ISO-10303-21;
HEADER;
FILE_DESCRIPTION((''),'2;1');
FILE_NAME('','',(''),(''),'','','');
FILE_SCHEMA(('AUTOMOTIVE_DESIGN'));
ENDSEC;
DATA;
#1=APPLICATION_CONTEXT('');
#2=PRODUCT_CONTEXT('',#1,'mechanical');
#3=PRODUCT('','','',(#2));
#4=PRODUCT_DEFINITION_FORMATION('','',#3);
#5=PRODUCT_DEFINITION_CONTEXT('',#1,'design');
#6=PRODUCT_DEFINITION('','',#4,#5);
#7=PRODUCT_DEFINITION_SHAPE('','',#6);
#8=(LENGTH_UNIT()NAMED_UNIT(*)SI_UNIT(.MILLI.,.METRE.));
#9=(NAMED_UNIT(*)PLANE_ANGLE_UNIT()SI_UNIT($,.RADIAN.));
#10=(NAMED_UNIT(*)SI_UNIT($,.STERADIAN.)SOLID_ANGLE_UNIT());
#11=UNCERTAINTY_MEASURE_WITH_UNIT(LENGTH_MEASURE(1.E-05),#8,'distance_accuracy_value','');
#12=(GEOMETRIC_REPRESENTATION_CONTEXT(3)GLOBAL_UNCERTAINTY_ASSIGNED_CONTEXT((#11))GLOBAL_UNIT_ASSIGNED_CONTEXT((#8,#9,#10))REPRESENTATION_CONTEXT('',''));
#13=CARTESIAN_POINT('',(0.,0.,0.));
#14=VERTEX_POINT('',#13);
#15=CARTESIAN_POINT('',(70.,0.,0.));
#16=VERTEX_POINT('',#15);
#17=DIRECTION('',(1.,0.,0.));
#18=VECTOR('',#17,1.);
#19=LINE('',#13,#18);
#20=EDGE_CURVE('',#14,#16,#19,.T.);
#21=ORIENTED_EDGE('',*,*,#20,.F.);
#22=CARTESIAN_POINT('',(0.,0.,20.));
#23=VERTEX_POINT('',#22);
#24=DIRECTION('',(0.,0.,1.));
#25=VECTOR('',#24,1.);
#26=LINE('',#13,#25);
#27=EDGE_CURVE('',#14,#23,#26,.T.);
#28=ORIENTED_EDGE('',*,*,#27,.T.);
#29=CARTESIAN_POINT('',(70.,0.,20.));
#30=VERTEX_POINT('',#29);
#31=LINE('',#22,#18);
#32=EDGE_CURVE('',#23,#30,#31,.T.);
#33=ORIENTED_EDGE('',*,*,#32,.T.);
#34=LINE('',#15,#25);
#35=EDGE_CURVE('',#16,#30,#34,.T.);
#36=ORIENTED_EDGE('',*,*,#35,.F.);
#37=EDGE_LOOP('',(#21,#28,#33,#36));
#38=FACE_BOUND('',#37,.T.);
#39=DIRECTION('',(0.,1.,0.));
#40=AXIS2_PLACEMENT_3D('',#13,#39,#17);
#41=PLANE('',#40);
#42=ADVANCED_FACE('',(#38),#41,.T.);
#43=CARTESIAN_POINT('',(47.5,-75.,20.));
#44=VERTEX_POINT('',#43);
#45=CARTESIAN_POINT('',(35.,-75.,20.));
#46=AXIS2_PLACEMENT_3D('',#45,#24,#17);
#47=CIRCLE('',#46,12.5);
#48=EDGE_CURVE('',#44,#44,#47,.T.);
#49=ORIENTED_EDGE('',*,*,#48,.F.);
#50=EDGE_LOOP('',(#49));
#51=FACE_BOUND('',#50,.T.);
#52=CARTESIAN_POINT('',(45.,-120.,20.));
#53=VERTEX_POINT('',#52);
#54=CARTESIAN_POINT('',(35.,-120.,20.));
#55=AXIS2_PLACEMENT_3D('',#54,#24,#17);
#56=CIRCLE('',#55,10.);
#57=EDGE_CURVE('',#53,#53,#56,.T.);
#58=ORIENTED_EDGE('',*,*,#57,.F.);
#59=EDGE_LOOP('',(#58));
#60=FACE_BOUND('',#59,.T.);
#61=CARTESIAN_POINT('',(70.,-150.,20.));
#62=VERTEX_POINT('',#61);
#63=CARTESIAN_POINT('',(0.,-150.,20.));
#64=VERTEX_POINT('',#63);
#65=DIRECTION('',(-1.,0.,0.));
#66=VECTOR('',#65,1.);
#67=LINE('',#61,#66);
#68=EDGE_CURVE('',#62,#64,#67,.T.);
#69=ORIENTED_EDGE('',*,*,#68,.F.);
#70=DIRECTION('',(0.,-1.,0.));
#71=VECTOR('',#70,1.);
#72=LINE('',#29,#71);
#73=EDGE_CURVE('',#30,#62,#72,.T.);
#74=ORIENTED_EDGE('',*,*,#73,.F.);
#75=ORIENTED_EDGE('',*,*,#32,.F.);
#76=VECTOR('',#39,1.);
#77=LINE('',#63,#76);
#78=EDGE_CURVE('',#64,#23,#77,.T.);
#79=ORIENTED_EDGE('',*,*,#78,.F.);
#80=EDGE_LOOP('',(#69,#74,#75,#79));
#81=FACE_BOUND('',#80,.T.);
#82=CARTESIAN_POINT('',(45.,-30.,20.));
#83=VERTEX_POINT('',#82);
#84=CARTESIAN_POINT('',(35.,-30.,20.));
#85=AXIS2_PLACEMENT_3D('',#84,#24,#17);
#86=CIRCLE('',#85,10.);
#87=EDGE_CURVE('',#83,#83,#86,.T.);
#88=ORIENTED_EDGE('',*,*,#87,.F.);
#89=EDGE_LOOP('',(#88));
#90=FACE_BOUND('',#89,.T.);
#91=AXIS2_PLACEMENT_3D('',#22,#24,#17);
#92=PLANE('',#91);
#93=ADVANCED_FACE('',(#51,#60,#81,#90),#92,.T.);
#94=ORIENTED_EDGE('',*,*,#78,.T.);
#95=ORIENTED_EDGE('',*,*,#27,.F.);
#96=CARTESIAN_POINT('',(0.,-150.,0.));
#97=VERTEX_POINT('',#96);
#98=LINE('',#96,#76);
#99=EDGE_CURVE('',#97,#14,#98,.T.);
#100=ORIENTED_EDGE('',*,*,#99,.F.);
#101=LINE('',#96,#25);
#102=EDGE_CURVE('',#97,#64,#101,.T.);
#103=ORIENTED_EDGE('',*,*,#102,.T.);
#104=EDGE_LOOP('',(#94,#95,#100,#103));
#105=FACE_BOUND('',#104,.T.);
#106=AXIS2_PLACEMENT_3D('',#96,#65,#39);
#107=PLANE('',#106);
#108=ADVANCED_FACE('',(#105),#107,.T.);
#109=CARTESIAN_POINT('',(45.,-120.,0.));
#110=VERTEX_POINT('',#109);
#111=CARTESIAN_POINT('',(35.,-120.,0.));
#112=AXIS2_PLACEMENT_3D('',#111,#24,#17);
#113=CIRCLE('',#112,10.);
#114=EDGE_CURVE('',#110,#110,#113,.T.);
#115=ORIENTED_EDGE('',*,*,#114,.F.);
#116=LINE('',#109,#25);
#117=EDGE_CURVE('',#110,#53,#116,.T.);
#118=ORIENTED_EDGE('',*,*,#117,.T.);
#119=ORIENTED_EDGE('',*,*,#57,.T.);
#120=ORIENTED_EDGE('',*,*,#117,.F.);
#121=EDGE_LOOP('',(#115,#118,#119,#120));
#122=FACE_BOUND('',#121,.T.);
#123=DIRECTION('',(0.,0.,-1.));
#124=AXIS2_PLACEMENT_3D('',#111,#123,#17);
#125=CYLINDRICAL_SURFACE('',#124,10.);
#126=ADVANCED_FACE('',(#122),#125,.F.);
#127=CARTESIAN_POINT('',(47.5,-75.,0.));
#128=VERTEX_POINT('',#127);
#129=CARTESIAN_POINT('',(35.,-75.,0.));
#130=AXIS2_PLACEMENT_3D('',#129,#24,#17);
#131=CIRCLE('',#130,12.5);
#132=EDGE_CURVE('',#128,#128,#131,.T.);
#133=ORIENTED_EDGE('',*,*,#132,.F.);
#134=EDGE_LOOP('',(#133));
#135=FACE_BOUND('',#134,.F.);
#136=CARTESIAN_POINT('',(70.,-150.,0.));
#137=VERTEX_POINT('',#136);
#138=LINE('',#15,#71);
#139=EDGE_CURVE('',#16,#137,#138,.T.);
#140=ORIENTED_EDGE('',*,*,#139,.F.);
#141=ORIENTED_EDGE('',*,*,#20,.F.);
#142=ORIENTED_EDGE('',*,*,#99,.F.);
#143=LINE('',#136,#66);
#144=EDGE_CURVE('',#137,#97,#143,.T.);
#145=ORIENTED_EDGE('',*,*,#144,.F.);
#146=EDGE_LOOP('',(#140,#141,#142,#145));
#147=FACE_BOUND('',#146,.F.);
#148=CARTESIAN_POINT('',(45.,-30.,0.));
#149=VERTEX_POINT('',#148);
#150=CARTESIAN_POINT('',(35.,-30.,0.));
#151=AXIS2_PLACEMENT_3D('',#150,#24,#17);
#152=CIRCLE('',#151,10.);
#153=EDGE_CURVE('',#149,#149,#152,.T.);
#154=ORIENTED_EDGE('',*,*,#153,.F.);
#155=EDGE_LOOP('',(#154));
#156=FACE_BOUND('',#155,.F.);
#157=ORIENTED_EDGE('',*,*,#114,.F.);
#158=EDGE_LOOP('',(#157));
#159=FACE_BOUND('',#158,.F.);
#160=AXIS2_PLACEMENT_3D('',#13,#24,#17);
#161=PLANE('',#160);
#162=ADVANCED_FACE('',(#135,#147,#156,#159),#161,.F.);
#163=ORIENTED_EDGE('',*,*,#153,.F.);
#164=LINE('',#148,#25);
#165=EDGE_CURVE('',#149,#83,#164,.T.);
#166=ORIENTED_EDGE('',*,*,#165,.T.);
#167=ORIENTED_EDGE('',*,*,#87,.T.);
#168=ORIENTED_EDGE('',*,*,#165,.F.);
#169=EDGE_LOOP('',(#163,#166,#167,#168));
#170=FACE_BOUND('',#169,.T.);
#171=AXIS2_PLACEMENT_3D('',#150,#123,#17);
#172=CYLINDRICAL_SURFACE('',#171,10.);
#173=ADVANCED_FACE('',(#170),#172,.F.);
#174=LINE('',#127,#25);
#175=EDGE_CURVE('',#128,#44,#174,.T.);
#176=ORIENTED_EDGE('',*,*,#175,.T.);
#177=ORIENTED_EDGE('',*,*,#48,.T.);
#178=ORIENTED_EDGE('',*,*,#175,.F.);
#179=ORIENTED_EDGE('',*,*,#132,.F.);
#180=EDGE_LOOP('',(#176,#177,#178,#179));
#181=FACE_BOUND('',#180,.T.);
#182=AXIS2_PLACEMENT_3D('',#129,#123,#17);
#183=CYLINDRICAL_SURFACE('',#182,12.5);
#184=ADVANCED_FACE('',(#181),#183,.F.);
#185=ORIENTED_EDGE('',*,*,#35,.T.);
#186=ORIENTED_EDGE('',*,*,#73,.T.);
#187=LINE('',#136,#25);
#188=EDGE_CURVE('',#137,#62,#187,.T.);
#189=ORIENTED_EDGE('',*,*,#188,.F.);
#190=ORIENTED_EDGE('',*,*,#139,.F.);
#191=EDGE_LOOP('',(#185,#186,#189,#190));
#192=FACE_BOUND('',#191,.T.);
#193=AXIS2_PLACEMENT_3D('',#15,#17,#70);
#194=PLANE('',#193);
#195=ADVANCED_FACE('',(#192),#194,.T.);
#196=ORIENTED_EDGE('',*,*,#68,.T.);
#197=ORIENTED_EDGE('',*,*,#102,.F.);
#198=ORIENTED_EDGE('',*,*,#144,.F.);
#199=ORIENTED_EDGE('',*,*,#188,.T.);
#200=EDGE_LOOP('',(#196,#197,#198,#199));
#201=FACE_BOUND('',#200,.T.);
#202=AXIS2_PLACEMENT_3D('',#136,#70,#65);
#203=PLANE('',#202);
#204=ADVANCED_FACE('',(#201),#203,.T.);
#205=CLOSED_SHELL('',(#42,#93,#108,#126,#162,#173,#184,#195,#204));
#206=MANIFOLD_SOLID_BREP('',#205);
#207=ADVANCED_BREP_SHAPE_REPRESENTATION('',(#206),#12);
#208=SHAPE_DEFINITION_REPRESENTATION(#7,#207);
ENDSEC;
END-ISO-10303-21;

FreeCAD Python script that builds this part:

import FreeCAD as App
import Part
import Sketcher

doc = App.newDocument("Part")
body = doc.addObject("PartDesign::Body", "Body")

# Sketch on XY plane
sketch1 = body.newObject("Sketcher::SketchObject", "Sketch")
sketch1.AttachmentSupport = (doc.getObject("XY_Plane"), [""])
sketch1.MapMode = "FlatFace"
sketch1.addGeometry([
    Part.LineSegment(App.Vector(70, 0, 0), App.Vector(0, 0, 0)),  # 0
    Part.LineSegment(App.Vector(0, 0, 0), App.Vector(0, -150, 0)),  # 1
    Part.LineSegment(App.Vector(0, -150, 0), App.Vector(70, -150, 0)),  # 2
    Part.LineSegment(App.Vector(70, -150, 0), App.Vector(70, 0, 0)),  # 3
    Part.Circle(App.Vector(35, -120, 0), App.Vector(0, 0, 1), 10),  # 4
    Part.Circle(App.Vector(35, -75, 0), App.Vector(0, 0, 1), 12.5),  # 5
    Part.Circle(App.Vector(35, -30, 0), App.Vector(0, 0, 1), 10),  # 6
], False)
sketch1.addConstraint([
    Sketcher.Constraint("Coincident", 0, 2, 1, 1),
    Sketcher.Constraint("Coincident", 1, 2, 2, 1),
    Sketcher.Constraint("Coincident", 2, 2, 3, 1),
    Sketcher.Constraint("Coincident", 3, 2, 0, 1),
    Sketcher.Constraint("Horizontal", 0),
    Sketcher.Constraint("Vertical", 1),
    Sketcher.Constraint("Horizontal", 2),
    Sketcher.Constraint("Vertical", 3),
    Sketcher.Constraint("Coincident", 0, 2, -1, 1),
    Sketcher.Constraint("Equal", 4, 6),
    Sketcher.Constraint("Vertical", 4, 3, 5, 3),
    Sketcher.Constraint("Vertical", 5, 3, 6, 3),
    Sketcher.Constraint("Diameter", 4, 20.0),
    Sketcher.Constraint("Diameter", 5, 25.0),
    Sketcher.Constraint("DistanceX", 0, 2, 0, 1, 70.0),
    Sketcher.Constraint("DistanceY", 1, 2, 1, 1, 150.0),
    Sketcher.Constraint("DistanceX", -1, 1, 4, 3, 35.0),
    Sketcher.Constraint("DistanceY", 4, 3, -1, 1, 120.0),
    Sketcher.Constraint("DistanceY", 5, 3, -1, 1, 75.0),
    Sketcher.Constraint("DistanceY", 6, 3, -1, 1, 30.0),
])
pad1 = body.newObject("PartDesign::Pad", "Pad")
pad1.Profile = sketch1
pad1.Length = 20

doc.recompute()
